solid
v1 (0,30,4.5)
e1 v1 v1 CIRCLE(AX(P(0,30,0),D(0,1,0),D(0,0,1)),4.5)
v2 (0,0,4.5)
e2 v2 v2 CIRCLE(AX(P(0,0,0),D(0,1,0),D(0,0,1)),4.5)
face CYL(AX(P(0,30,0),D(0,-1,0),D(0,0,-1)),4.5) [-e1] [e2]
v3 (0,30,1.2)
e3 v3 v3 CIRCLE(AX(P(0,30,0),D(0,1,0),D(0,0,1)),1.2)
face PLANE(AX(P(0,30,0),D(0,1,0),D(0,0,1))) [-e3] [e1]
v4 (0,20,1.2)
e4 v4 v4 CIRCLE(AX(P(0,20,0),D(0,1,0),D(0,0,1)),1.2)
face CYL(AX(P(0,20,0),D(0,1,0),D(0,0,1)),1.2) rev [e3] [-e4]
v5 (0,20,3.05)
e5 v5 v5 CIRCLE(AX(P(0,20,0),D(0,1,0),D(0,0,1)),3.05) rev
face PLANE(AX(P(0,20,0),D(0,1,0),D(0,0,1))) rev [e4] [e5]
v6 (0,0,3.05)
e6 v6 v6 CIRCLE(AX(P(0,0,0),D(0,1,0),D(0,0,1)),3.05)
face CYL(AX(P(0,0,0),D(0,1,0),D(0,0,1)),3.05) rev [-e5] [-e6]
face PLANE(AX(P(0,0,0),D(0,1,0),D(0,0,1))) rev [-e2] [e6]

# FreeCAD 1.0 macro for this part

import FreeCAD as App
import Part
import Sketcher
from FreeCAD import Vector

doc = App.newDocument("Part")
body = doc.addObject("PartDesign::Body", "Body")

sketch1 = body.newObject("Sketcher::SketchObject", "Sketch")
sketch1.AttachmentSupport = (doc.getObject("XZ_Plane"), [""])
sketch1.MapMode = "FlatFace"
sketch1.addGeometry(Part.Circle(Vector(0, 0, 0), Vector(0, 0, 1), 4.5), False)
sketch1.addConstraint([
    Sketcher.Constraint("Coincident", 0, 3, -1, 1),
    Sketcher.Constraint("Diameter", 0, 9.0),
])
pad1 = body.newObject("PartDesign::Pad", "Pad")
pad1.Profile = sketch1
pad1.Length = 30
pad1.Reversed = True

sketch2 = body.newObject("Sketcher::SketchObject", "Sketch001")
sketch2.AttachmentSupport = (doc.getObject("XZ_Plane"), [""])
sketch2.MapMode = "FlatFace"
sketch2.AttachmentOffset = App.Placement(Vector(0, 0, -30), App.Rotation())
sketch2.addGeometry(Part.Circle(Vector(0, 0, 0), Vector(0, 0, 1), 3), False)
sketch2.addConstraint([
    Sketcher.Constraint("Coincident", 0, 3, -1, 1),
    Sketcher.Constraint("Diameter", 0, 6.1),
])
pocket1 = body.newObject("PartDesign::Pocket", "Pocket")
pocket1.Profile = sketch2
pocket1.Type = "ThroughAll"
pocket1.Reversed = True

sketch3 = body.newObject("Sketcher::SketchObject", "Sketch002")
sketch3.AttachmentSupport = (doc.getObject("XZ_Plane"), [""])
sketch3.MapMode = "FlatFace"
sketch3.AttachmentOffset = App.Placement(Vector(0, 0, -30), App.Rotation())
sketch3.addGeometry(Part.Circle(Vector(0, 0, 0), Vector(0, 0, 1), 3), False)
sketch3.addConstraint([
    Sketcher.Constraint("Coincident", 0, 3, -1, 1),
    Sketcher.Constraint("Diameter", 0, 6.1),
])
pad2 = body.newObject("PartDesign::Pad", "Pad001")
pad2.Profile = sketch3
pad2.Length = 10

sketch4 = body.newObject("Sketcher::SketchObject", "Sketch003")
sketch4.AttachmentSupport = (doc.getObject("XZ_Plane"), [""])
sketch4.MapMode = "FlatFace"
sketch4.AttachmentOffset = App.Placement(Vector(0, 0, -30), App.Rotation())
sketch4.addGeometry(Part.Circle(Vector(0, 0, 0), Vector(0, 0, 1), 1.2), False)
sketch4.addConstraint([
    Sketcher.Constraint("Coincident", 0, 3, -1, 1),
    Sketcher.Constraint("Diameter", 0, 2.4),
])
pocket2 = body.newObject("PartDesign::Pocket", "Pocket001")
pocket2.Profile = sketch4
pocket2.Length = 10
pocket2.Reversed = True

doc.recompute()
